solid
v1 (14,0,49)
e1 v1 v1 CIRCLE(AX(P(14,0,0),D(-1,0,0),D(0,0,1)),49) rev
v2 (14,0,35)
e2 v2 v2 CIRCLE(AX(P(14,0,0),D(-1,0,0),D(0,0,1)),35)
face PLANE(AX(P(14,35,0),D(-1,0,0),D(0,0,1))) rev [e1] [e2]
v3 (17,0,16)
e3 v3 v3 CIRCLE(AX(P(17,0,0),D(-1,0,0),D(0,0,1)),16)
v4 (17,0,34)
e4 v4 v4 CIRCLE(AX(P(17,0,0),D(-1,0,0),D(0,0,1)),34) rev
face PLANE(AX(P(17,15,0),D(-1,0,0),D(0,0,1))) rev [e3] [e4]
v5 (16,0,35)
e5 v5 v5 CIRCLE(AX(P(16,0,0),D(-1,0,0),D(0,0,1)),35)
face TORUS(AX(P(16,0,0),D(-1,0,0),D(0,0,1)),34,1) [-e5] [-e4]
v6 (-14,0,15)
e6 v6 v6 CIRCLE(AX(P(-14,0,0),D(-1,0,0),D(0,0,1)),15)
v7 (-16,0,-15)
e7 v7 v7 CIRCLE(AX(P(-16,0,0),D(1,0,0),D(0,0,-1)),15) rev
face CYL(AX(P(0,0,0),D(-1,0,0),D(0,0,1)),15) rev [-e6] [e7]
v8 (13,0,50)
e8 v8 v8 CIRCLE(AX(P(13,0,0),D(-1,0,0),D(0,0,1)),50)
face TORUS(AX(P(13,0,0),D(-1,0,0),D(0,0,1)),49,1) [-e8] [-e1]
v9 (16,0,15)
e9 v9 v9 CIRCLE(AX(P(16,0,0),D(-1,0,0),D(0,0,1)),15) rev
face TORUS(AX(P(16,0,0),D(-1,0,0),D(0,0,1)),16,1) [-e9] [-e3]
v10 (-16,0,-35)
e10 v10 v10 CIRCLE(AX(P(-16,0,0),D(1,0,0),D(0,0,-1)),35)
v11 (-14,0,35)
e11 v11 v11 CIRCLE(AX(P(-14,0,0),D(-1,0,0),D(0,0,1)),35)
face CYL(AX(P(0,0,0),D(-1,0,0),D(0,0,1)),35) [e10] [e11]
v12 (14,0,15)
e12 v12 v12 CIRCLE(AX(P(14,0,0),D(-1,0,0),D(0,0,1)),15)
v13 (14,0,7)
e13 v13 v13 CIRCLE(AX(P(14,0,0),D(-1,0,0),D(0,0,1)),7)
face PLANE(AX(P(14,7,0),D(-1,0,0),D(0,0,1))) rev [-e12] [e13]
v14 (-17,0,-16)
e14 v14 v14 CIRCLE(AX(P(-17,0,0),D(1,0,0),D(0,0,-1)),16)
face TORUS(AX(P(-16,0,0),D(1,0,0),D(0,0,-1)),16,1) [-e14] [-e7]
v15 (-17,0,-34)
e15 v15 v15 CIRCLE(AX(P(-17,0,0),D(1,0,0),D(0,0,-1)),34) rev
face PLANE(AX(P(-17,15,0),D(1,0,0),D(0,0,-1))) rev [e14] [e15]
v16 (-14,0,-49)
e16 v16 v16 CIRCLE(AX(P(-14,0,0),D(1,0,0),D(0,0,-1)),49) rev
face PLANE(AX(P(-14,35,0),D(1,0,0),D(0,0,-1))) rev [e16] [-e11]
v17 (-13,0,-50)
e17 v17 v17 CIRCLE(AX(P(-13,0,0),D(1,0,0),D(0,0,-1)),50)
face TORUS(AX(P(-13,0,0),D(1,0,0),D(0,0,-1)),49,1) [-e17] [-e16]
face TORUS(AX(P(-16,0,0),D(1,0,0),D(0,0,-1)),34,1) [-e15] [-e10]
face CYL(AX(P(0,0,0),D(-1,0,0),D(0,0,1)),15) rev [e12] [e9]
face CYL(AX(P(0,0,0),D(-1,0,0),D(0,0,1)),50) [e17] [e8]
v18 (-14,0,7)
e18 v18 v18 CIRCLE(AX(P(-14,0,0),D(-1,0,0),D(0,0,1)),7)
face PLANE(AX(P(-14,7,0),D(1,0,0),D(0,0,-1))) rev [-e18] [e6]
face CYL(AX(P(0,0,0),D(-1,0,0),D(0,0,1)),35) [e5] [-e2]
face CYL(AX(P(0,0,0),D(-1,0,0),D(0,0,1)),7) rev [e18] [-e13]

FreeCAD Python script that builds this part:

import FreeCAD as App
import Part
import Sketcher

V = App.Vector
Q = App.Units.Quantity


def edges_at(feature, points):
    """Names of the edges that pass closest to the given points."""
    edges = feature.Shape.Edges
    near = lambda p: min(range(len(edges)), key=lambda i: edges[i].distToShape(Part.Vertex(*p))[0])
    return sorted({f"Edge{near(p) + 1}" for p in points})

doc = App.newDocument("Part")
body = doc.addObject("PartDesign::Body", "Body")

# Sketch on XY plane
sketch1 = body.newObject("Sketcher::SketchObject", "Sketch")
sketch1.AttachmentSupport = (doc.getObject("XY_Plane"), [""])
sketch1.MapMode = "FlatFace"
sketch1.addGeometry(Part.LineSegment(V(14, 7, 0), V(14, 15, 0)), False)
sketch1.addGeometry(Part.LineSegment(V(14, 15, 0), V(17, 15, 0)), False)
sketch1.addGeometry(Part.LineSegment(V(17, 15, 0), V(17, 35, 0)), False)
sketch1.addGeometry(Part.LineSegment(V(17, 35, 0), V(14, 35, 0)), False)
sketch1.addGeometry(Part.LineSegment(V(14, 35, 0), V(14, 50, 0)), False)
sketch1.addGeometry(Part.LineSegment(V(14, 50, 0), V(-14, 50, 0)), False)
sketch1.addGeometry(Part.LineSegment(V(-14, 50, 0), V(-14, 35, 0)), False)
sketch1.addGeometry(Part.LineSegment(V(-14, 35, 0), V(-17, 35, 0)), False)
sketch1.addGeometry(Part.LineSegment(V(-17, 35, 0), V(-17, 15, 0)), False)
sketch1.addGeometry(Part.LineSegment(V(-17, 15, 0), V(-14, 15, 0)), False)
sketch1.addGeometry(Part.LineSegment(V(-14, 15, 0), V(-14, 7, 0)), False)
sketch1.addGeometry(Part.LineSegment(V(-14, 7, 0), V(14, 7, 0)), False)
sketch1.addConstraint(Sketcher.Constraint("Coincident", 0, 2, 1, 1))
sketch1.addConstraint(Sketcher.Constraint("Coincident", 1, 2, 2, 1))
sketch1.addConstraint(Sketcher.Constraint("Coincident", 2, 2, 3, 1))
sketch1.addConstraint(Sketcher.Constraint("Coincident", 3, 2, 4, 1))
sketch1.addConstraint(Sketcher.Constraint("Coincident", 4, 2, 5, 1))
sketch1.addConstraint(Sketcher.Constraint("Coincident", 5, 2, 6, 1))
sketch1.addConstraint(Sketcher.Constraint("Coincident", 6, 2, 7, 1))
sketch1.addConstraint(Sketcher.Constraint("Coincident", 7, 2, 8, 1))
sketch1.addConstraint(Sketcher.Constraint("Coincident", 8, 2, 9, 1))
sketch1.addConstraint(Sketcher.Constraint("Coincident", 9, 2, 10, 1))
sketch1.addConstraint(Sketcher.Constraint("Coincident", 10, 2, 11, 1))
sketch1.addConstraint(Sketcher.Constraint("Coincident", 11, 2, 0, 1))
sketch1.addConstraint(Sketcher.Constraint("Vertical", 0))
sketch1.addConstraint(Sketcher.Constraint("Horizontal", 1))
sketch1.addConstraint(Sketcher.Constraint("Vertical", 2))
sketch1.addConstraint(Sketcher.Constraint("Horizontal", 3))
sketch1.addConstraint(Sketcher.Constraint("Vertical", 4))
sketch1.addConstraint(Sketcher.Constraint("Horizontal", 5))
sketch1.addConstraint(Sketcher.Constraint("Vertical", 6))
sketch1.addConstraint(Sketcher.Constraint("Horizontal", 7))
sketch1.addConstraint(Sketcher.Constraint("Vertical", 8))
sketch1.addConstraint(Sketcher.Constraint("Horizontal", 9))
sketch1.addConstraint(Sketcher.Constraint("Vertical", 10))
sketch1.addConstraint(Sketcher.Constraint("Horizontal", 11))
sketch1.addConstraint(Sketcher.Constraint("Symmetric", 3, 2, 6, 2, -2))
sketch1.addConstraint(Sketcher.Constraint("Symmetric", 1, 2, 8, 2, -2))
sketch1.addConstraint(Sketcher.Constraint("Vertical", 0, 2, 3, 2))
sketch1.addConstraint(Sketcher.Constraint("Vertical", 6, 2, 9, 2))
sketch1.addConstraint(Sketcher.Constraint("DistanceX", 1, 1, 1, 2, Q("3 mm")))
sketch1.addConstraint(Sketcher.Constraint("DistanceX", 5, 2, 5, 1, Q("28 mm")))
sketch1.addConstraint(Sketcher.Constraint("DistanceY", 0, 1, 0, 2, Q("8 mm")))
sketch1.addConstraint(Sketcher.Constraint("DistanceY", 2, 1, 2, 2, Q("20 mm")))
sketch1.addConstraint(Sketcher.Constraint("DistanceY", 4, 1, 4, 2, Q("15 mm")))
sketch1.addConstraint(Sketcher.Constraint("DistanceY", -1, 1, 0, 2, Q("15 mm")))
revolution = body.newObject("PartDesign::Revolution", "Revolution")
revolution.Profile = sketch1
revolution.ReferenceAxis = (sketch1, ["H_Axis"])
revolution.Angle = 360
doc.recompute()

fillet = body.newObject("PartDesign::Fillet", "Fillet")
fillet.Base = (revolution, edges_at(revolution, [
    (-17, 0, -15),
    (-17, 0, -35),
    (-14, 0, -50),
    (14, 0, -50),
    (17, 0, -35),
    (17, 0, -15),
]))
fillet.Radius = 1

doc.recompute()
